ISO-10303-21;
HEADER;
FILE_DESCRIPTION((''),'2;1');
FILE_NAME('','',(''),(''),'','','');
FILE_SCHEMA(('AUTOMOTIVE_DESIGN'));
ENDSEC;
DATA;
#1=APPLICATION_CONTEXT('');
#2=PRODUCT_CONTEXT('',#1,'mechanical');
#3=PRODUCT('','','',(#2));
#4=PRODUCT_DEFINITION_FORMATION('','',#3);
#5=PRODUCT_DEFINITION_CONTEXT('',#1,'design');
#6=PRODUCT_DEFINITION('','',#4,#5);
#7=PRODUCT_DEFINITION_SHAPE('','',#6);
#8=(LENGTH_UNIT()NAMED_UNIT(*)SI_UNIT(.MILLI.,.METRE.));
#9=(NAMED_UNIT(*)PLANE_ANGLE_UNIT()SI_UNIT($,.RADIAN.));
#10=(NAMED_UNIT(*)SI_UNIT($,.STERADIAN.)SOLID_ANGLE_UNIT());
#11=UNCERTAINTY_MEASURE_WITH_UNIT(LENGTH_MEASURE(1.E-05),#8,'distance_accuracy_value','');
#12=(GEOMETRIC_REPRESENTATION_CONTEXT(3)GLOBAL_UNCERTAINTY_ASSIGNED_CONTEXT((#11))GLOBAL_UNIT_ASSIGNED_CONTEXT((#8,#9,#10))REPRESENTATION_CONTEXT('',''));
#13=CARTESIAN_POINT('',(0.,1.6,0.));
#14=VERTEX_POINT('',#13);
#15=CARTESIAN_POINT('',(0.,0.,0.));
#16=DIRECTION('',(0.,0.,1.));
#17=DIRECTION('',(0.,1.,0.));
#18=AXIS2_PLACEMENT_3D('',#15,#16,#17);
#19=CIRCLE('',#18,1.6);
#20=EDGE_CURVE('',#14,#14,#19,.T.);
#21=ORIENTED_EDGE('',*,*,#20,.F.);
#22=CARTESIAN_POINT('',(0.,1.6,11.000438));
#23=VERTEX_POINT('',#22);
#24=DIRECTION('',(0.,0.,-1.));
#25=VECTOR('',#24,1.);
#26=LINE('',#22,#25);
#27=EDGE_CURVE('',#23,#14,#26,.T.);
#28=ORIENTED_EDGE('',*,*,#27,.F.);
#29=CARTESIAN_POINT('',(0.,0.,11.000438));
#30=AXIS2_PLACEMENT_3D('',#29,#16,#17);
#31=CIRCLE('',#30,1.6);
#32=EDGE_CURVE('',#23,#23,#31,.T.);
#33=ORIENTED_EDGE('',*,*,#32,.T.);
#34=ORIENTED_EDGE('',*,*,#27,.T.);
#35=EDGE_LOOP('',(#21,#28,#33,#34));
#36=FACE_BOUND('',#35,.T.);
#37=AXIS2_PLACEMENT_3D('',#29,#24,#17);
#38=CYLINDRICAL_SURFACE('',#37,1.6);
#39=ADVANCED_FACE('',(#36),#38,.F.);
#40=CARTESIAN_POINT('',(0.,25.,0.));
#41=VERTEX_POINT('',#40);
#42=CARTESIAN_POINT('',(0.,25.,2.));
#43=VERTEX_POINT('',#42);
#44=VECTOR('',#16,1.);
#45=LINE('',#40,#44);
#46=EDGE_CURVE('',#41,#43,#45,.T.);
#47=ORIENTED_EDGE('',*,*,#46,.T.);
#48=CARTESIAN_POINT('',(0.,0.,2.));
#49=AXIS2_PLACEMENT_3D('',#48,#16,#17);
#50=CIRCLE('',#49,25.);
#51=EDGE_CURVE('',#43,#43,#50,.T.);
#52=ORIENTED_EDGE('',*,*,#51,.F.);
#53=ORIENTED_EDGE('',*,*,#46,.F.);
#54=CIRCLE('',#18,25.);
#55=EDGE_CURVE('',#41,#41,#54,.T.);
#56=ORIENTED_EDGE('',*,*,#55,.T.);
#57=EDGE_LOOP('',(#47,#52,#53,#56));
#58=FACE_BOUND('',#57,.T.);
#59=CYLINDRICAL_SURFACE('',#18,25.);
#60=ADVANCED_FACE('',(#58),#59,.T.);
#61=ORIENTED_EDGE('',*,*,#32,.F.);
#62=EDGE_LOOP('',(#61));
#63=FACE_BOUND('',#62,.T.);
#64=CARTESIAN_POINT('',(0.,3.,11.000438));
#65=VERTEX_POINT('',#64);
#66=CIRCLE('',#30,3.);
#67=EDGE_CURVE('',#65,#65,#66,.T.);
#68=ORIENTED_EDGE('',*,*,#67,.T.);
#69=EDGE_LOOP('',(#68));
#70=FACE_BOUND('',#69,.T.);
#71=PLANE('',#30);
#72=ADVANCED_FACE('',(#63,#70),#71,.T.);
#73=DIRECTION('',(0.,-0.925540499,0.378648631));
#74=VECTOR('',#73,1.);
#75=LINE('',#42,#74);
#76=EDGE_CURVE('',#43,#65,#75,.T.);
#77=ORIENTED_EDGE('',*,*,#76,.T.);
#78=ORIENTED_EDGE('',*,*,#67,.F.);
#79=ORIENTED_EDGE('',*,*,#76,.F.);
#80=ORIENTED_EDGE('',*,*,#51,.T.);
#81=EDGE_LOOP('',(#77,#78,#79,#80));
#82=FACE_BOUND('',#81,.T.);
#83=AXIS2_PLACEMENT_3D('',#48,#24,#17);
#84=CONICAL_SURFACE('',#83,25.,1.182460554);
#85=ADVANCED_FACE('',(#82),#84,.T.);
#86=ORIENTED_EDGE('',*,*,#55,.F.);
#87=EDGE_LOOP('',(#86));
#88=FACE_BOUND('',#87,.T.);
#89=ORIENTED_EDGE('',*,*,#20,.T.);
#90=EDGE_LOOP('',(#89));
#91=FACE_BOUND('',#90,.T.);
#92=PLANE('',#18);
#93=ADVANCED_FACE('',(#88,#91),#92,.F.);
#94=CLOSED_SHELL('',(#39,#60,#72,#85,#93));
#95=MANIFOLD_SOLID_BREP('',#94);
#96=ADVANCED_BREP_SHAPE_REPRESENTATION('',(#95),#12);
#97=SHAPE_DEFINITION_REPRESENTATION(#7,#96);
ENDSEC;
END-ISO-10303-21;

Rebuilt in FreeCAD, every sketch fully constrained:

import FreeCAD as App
import Part
import Sketcher

V = App.Vector
Q = App.Units.Quantity


def add_polygon(sketch, points):
    """Adds a closed chain of lines whose ends are joined by coincident constraints."""
    first, n = sketch.GeometryCount, len(points)
    for a, b in zip(points, points[1:] + points[:1]):
        sketch.addGeometry(Part.LineSegment(App.Vector(*a, 0), App.Vector(*b, 0)), False)
    for i in range(n):
        sketch.addConstraint(Sketcher.Constraint("Coincident", first + i, 2, first + (i + 1) % n, 1))

doc = App.newDocument("Part")
params = doc.addObject("Spreadsheet::Sheet", "Params")
for row, (alias, value) in enumerate([
    ("sketch1_height", "2 mm"),
    ("sketch1_width", "23.4 mm"),
    ("sketch1_width2", "1.4 mm"),
    ("revolution_angle", "360 deg"),
], start=1):
    params.set(f"A{row}", alias)
    params.set(f"B{row}", "=" + value)
    params.setAlias(f"B{row}", alias)

body = doc.addObject("PartDesign::Body", "Body")

# Sketch on YZ plane
sketch1 = doc.addObject("Sketcher::SketchObject", "Sketch")
body.addObject(sketch1)
sketch1.AttachmentSupport = (doc.YZ_Plane, [""])
sketch1.MapMode = "FlatFace"
add_polygon(sketch1, [(1.6, 11), (1.6, 0), (25, 0), (25, 2), (3, 11)])  # lines 0-4
sketch1.addConstraint([
    Sketcher.Constraint("Vertical", 0),
    Sketcher.Constraint("Horizontal", 1),
    Sketcher.Constraint("Vertical", 2),
    Sketcher.Constraint("Horizontal", 4),
    Sketcher.Constraint("PointOnObject", 0, 2, -1),
    Sketcher.Constraint("DistanceY", 2, 1, 2, 2, 2.0),
    Sketcher.Constraint("DistanceX", 1, 1, 1, 2, 23.4),
    Sketcher.Constraint("DistanceX", 4, 2, 4, 1, 1.4),
    Sketcher.Constraint("DistanceX", -1, 1, 1, 2, 25.0),
    Sketcher.Constraint("Angle", 3, Q("157.749999 deg")),
])
sketch1.setExpression("Constraints[10]", "Params.sketch1_height")
sketch1.setExpression("Constraints[11]", "Params.sketch1_width")
sketch1.setExpression("Constraints[12]", "Params.sketch1_width2")
revolution = doc.addObject("PartDesign::Revolution", "Revolution")
body.addObject(revolution)
revolution.Profile = sketch1
revolution.ReferenceAxis = (sketch1, ["V_Axis"])
revolution.setExpression("Angle", "Params.revolution_angle")

doc.recompute()
